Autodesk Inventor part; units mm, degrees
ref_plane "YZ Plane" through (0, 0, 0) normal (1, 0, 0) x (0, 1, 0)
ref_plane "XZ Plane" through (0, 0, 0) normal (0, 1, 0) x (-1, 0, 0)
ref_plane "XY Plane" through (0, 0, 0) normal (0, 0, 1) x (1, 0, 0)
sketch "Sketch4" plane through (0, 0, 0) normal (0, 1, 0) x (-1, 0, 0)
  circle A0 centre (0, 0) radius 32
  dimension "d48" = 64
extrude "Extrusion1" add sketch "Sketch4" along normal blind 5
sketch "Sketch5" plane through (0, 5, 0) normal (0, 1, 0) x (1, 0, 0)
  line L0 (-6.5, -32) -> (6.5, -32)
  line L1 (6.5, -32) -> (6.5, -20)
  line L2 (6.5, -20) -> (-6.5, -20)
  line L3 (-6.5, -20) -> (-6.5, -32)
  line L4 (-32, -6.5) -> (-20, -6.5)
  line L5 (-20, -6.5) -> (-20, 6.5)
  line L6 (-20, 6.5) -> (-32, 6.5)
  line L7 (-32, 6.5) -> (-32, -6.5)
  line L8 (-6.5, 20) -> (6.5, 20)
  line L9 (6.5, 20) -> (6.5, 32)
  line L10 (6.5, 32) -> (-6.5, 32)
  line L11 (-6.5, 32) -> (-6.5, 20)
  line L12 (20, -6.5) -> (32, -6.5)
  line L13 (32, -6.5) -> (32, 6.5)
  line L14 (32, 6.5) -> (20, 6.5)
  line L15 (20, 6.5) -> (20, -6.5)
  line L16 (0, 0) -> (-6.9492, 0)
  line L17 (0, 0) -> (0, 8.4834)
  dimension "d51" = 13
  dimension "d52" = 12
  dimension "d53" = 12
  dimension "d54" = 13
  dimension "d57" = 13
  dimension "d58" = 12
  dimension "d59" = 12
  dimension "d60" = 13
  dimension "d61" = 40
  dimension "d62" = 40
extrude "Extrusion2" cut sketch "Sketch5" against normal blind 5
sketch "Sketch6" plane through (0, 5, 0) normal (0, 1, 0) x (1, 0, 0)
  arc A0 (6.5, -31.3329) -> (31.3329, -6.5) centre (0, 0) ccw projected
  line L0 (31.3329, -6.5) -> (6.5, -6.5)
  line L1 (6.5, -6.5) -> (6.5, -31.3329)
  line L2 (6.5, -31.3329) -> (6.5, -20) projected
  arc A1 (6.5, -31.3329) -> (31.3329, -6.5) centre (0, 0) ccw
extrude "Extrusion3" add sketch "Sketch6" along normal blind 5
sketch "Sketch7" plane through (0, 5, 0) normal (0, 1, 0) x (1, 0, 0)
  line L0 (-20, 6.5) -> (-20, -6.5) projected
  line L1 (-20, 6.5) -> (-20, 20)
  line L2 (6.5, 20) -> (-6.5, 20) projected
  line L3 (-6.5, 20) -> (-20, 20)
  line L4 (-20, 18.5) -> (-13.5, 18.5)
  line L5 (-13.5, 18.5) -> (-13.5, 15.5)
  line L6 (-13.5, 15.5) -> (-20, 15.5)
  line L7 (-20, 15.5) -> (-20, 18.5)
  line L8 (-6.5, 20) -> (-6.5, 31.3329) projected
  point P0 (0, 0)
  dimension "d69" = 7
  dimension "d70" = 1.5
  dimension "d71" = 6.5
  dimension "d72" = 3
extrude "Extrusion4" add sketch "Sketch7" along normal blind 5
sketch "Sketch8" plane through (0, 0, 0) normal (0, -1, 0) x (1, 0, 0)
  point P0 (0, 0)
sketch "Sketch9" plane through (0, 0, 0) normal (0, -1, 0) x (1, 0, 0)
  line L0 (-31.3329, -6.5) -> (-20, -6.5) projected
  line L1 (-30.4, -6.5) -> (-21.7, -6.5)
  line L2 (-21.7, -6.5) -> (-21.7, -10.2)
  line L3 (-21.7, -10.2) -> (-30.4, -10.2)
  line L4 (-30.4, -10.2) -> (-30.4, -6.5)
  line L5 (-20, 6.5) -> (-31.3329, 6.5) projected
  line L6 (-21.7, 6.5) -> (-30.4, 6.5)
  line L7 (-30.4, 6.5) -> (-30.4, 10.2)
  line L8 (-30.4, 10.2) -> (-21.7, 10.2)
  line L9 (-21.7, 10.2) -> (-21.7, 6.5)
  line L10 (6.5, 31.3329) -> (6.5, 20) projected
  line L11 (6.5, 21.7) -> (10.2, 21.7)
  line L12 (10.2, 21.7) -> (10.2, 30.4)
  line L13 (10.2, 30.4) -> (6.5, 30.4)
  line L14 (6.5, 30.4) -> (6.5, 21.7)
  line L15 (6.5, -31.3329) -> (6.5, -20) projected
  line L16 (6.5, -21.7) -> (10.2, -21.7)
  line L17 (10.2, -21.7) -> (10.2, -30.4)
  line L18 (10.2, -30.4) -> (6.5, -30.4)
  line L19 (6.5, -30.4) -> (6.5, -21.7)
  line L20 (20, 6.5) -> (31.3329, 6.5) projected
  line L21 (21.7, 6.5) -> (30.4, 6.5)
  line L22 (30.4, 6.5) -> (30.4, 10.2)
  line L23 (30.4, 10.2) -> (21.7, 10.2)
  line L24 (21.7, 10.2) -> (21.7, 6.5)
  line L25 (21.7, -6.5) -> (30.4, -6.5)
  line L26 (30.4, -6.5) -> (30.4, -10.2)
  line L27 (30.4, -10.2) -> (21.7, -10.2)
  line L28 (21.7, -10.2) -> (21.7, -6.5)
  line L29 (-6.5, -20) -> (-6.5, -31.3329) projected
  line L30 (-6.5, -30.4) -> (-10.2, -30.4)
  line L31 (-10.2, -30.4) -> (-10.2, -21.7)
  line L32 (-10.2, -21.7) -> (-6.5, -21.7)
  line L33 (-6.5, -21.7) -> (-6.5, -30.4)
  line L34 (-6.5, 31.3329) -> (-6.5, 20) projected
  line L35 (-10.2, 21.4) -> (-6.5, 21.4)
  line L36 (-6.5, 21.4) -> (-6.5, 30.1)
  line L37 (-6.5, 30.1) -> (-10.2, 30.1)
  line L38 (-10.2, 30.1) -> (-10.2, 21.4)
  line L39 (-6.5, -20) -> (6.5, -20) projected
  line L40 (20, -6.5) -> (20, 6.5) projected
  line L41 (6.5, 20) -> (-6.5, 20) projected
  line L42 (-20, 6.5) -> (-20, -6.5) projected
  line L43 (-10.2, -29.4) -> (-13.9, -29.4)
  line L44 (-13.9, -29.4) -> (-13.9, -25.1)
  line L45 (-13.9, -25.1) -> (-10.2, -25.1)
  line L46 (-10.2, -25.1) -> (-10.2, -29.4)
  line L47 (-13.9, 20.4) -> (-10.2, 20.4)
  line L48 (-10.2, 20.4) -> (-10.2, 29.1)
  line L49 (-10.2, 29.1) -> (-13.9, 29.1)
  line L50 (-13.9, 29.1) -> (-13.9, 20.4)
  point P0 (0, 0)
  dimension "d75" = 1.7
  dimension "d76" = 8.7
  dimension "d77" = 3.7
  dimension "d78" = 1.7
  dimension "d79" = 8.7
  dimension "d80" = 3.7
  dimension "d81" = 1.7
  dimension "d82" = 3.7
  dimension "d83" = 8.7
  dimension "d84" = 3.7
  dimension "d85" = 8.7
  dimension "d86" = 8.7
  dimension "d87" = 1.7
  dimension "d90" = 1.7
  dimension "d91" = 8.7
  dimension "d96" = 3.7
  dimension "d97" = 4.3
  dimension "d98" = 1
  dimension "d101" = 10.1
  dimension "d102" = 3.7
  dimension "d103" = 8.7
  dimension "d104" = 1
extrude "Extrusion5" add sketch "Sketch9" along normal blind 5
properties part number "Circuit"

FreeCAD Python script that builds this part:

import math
import FreeCAD as App
import Part
import Sketcher

V = App.Vector
Q = App.Units.Quantity

doc = App.newDocument("Part")
body = doc.addObject("PartDesign::Body", "Body")

sketch1 = body.newObject("Sketcher::SketchObject", "Sketch")
sketch1.AttachmentSupport = (doc.getObject("XZ_Plane"), [""])
sketch1.MapMode = "FlatFace"
sketch1.addGeometry(Part.Circle(V(0, 0, 0), V(0, 0, 1), 32), False)
sketch1.addConstraint([
    Sketcher.Constraint("Coincident", 0, 3, -1, 1),
    Sketcher.Constraint("Diameter", 0, Q("64 mm")),
])
pad1 = body.newObject("PartDesign::Pad", "Pad")
pad1.Profile = sketch1
pad1.Length = 5
pad1.Reversed = True

sketch2 = body.newObject("Sketcher::SketchObject", "Sketch001")
sketch2.AttachmentSupport = (doc.getObject("XZ_Plane"), [""])
sketch2.MapMode = "FlatFace"
sketch2.AttachmentOffset = App.Placement(V(0, 0, -5), App.Rotation())
sketch2.addGeometry([
    Part.LineSegment(V(-6, 20, 0), V(-6, 32, 0)),
    Part.LineSegment(V(-6, 32, 0), V(6, 32, 0)),
    Part.LineSegment(V(6, 32, 0), V(6, 20, 0)),
    Part.LineSegment(V(6, 20, 0), V(-6, 20, 0)),
    Part.LineSegment(V(-32, -6, 0), V(-32, 6, 0)),
    Part.LineSegment(V(-32, 6, 0), V(-20, 6, 0)),
    Part.LineSegment(V(-20, 6, 0), V(-20, -6, 0)),
    Part.LineSegment(V(-20, -6, 0), V(-32, -6, 0)),
    Part.LineSegment(V(-6, -32, 0), V(-6, -20, 0)),
    Part.LineSegment(V(-6, -20, 0), V(6, -20, 0)),
    Part.LineSegment(V(6, -20, 0), V(6, -32, 0)),
    Part.LineSegment(V(6, -32, 0), V(-6, -32, 0)),
    Part.LineSegment(V(20, -6, 0), V(20, 6, 0)),
    Part.LineSegment(V(20, 6, 0), V(32, 6, 0)),
    Part.LineSegment(V(32, 6, 0), V(32, -6, 0)),
    Part.LineSegment(V(32, -6, 0), V(20, -6, 0)),
], False)
sketch2.addConstraint([
    Sketcher.Constraint("Coincident", 0, 2, 1, 1),
    Sketcher.Constraint("Coincident", 1, 2, 2, 1),
    Sketcher.Constraint("Coincident", 2, 2, 3, 1),
    Sketcher.Constraint("Coincident", 3, 2, 0, 1),
    Sketcher.Constraint("Coincident", 4, 2, 5, 1),
    Sketcher.Constraint("Coincident", 5, 2, 6, 1),
    Sketcher.Constraint("Coincident", 6, 2, 7, 1),
    Sketcher.Constraint("Coincident", 7, 2, 4, 1),
    Sketcher.Constraint("Coincident", 8, 2, 9, 1),
    Sketcher.Constraint("Coincident", 9, 2, 10, 1),
    Sketcher.Constraint("Coincident", 10, 2, 11, 1),
    Sketcher.Constraint("Coincident", 11, 2, 8, 1),
    Sketcher.Constraint("Coincident", 12, 2, 13, 1),
    Sketcher.Constraint("Coincident", 13, 2, 14, 1),
    Sketcher.Constraint("Coincident", 14, 2, 15, 1),
    Sketcher.Constraint("Coincident", 15, 2, 12, 1),
    Sketcher.Constraint("Vertical", 0),
    Sketcher.Constraint("Horizontal", 1),
    Sketcher.Constraint("Vertical", 2),
    Sketcher.Constraint("Horizontal", 3),
    Sketcher.Constraint("Vertical", 4),
    Sketcher.Constraint("Horizontal", 5),
    Sketcher.Constraint("Vertical", 6),
    Sketcher.Constraint("Horizontal", 7),
    Sketcher.Constraint("Vertical", 8),
    Sketcher.Constraint("Horizontal", 9),
    Sketcher.Constraint("Vertical", 10),
    Sketcher.Constraint("Horizontal", 11),
    Sketcher.Constraint("Vertical", 12),
    Sketcher.Constraint("Horizontal", 13),
    Sketcher.Constraint("Vertical", 14),
    Sketcher.Constraint("Horizontal", 15),
    Sketcher.Constraint("Symmetric", 2, 2, 8, 2, -1, 1),
    Sketcher.Constraint("Symmetric", 0, 2, 10, 2, -1, 1),
    Sketcher.Constraint("Symmetric", 6, 2, 12, 2, -1, 1),
    Sketcher.Constraint("Symmetric", 4, 2, 14, 2, -1, 1),
    Sketcher.Constraint("Horizontal", 5, 2, 12, 2),
    Sketcher.Constraint("Vertical", 3, 2, 8, 2),
    Sketcher.Constraint("Equal", 15, 0),
    Sketcher.Constraint("Equal", 11, 4),
    Sketcher.Constraint("DistanceX", 1, 1, 1, 2, Q("13 mm")),
    Sketcher.Constraint("DistanceX", 5, 1, 5, 2, Q("12 mm")),
    Sketcher.Constraint("DistanceY", 8, 2, 3, 2, Q("40 mm")),
    Sketcher.Constraint("DistanceX", 4, 2, -1, 1, Q("32 mm")),
])
pocket1 = body.newObject("PartDesign::Pocket", "Pocket")
pocket1.Profile = sketch2
pocket1.Length = 5
pocket1.Reversed = True

sketch3 = body.newObject("Sketcher::SketchObject", "Sketch002")
sketch3.AttachmentSupport = (doc.getObject("XZ_Plane"), [""])
sketch3.MapMode = "FlatFace"
sketch3.AttachmentOffset = App.Placement(V(0, 0, -5), App.Rotation())
sketch3.addGeometry([
    Part.LineSegment(V(6, 6, 0), V(6, 31, 0)),
    Part.ArcOfCircle(Part.Circle(V(0, 0, 0), V(0, 0, 1), 32), math.radians(12), math.radians(78)),
    Part.LineSegment(V(31, 6, 0), V(6, 6, 0)),
], False)
sketch3.addConstraint([
    Sketcher.Constraint("Coincident", 0, 2, 1, 2),
    Sketcher.Constraint("Coincident", 1, 1, 2, 1),
    Sketcher.Constraint("Coincident", 2, 2, 0, 1),
    Sketcher.Constraint("Vertical", 0),
    Sketcher.Constraint("Horizontal", 2),
    Sketcher.Constraint("Coincident", 1, 3, -1, 1),
    Sketcher.Constraint("Equal", 2, 0),
    Sketcher.Constraint("Radius", 1, Q("32 mm")),
    Sketcher.Constraint("DistanceX", -1, 1, 0, 2, Q("6.5 mm")),
])
pad2 = body.newObject("PartDesign::Pad", "Pad001")
pad2.Profile = sketch3
pad2.Length = 5
pad2.Reversed = True

sketch4 = body.newObject("Sketcher::SketchObject", "Sketch003")
sketch4.AttachmentSupport = (doc.getObject("XZ_Plane"), [""])
sketch4.MapMode = "FlatFace"
sketch4.AttachmentOffset = App.Placement(V(0, 0, -5), App.Rotation())
sketch4.addGeometry([
    Part.LineSegment(V(-20, -18.5, 0), V(-20, -15.5, 0)),
    Part.LineSegment(V(-20, -15.5, 0), V(-13.5, -15.5, 0)),
    Part.LineSegment(V(-13.5, -15.5, 0), V(-13.5, -18.5, 0)),
    Part.LineSegment(V(-13.5, -18.5, 0), V(-20, -18.5, 0)),
], False)
sketch4.addConstraint([
    Sketcher.Constraint("Coincident", 0, 2, 1, 1),
    Sketcher.Constraint("Coincident", 1, 2, 2, 1),
    Sketcher.Constraint("Coincident", 2, 2, 3, 1),
    Sketcher.Constraint("Coincident", 3, 2, 0, 1),
    Sketcher.Constraint("Vertical", 0),
    Sketcher.Constraint("Horizontal", 1),
    Sketcher.Constraint("Vertical", 2),
    Sketcher.Constraint("Horizontal", 3),
    Sketcher.Constraint("DistanceY", 0, 1, 0, 2, Q("3 mm")),
    Sketcher.Constraint("DistanceX", 1, 1, 1, 2, Q("6.5 mm")),
    Sketcher.Constraint("DistanceX", 0, 2, -1, 1, Q("20 mm")),
    Sketcher.Constraint("DistanceY", 0, 2, -1, 1, Q("15.5 mm")),
])
pad3 = body.newObject("PartDesign::Pad", "Pad002")
pad3.Profile = sketch4
pad3.Length = 5
pad3.Reversed = True

sketch5 = body.newObject("Sketcher::SketchObject", "Sketch004")
sketch5.AttachmentSupport = (doc.getObject("XZ_Plane"), [""])
sketch5.MapMode = "FlatFace"
sketch5.addGeometry([
    Part.LineSegment(V(-30.4, 6.5, 0), V(-21.7, 6.5, 0)),
    Part.LineSegment(V(-21.7, 6.5, 0), V(-21.7, 10.2, 0)),
    Part.LineSegment(V(-21.7, 10.2, 0), V(-30.4, 10.2, 0)),
    Part.LineSegment(V(-30.4, 10.2, 0), V(-30.4, 6.5, 0)),
    Part.LineSegment(V(-21.7, -6.5, 0), V(-30.4, -6.5, 0)),
    Part.LineSegment(V(-30.4, -6.5, 0), V(-30.4, -10.2, 0)),
    Part.LineSegment(V(-30.4, -10.2, 0), V(-21.7, -10.2, 0)),
    Part.LineSegment(V(-21.7, -10.2, 0), V(-21.7, -6.5, 0)),
    Part.LineSegment(V(10.2, 30.4, 0), V(6.5, 30.4, 0)),
    Part.LineSegment(V(6.5, 30.4, 0), V(6.5, 21.7, 0)),
    Part.LineSegment(V(6.5, 21.7, 0), V(10.2, 21.7, 0)),
    Part.LineSegment(V(10.2, 21.7, 0), V(10.2, 30.4, 0)),
    Part.LineSegment(V(-10.2, 21.4, 0), V(-6.5, 21.4, 0)),
    Part.LineSegment(V(-6.5, 21.4, 0), V(-6.5, 30.1, 0)),
    Part.LineSegment(V(-6.5, 30.1, 0), V(-10.2, 30.1, 0)),
    Part.LineSegment(V(-10.2, 30.1, 0), V(-10.2, 29.1, 0)),
    Part.LineSegment(V(-10.2, 29.1, 0), V(-13.9, 29.1, 0)),
    Part.LineSegment(V(-13.9, 29.1, 0), V(-13.9, 20.4, 0)),
    Part.LineSegment(V(-13.9, 20.4, 0), V(-10.2, 20.4, 0)),
    Part.LineSegment(V(-10.2, 20.4, 0), V(-10.2, 21.4, 0)),
    Part.LineSegment(V(-6.5, -30.4, 0), V(-6.5, -21.7, 0)),
    Part.LineSegment(V(-6.5, -21.7, 0), V(-10.2, -21.7, 0)),
    Part.LineSegment(V(-10.2, -21.7, 0), V(-10.2, -25.1, 0)),
    Part.LineSegment(V(-10.2, -25.1, 0), V(-13.9, -25.1, 0)),
    Part.LineSegment(V(-13.9, -25.1, 0), V(-13.9, -29.4, 0)),
    Part.LineSegment(V(-13.9, -29.4, 0), V(-10.2, -29.4, 0)),
    Part.LineSegment(V(-10.2, -29.4, 0), V(-10.2, -30.4, 0)),
    Part.LineSegment(V(-10.2, -30.4, 0), V(-6.5, -30.4, 0)),
    Part.LineSegment(V(6.5, -21.7, 0), V(6.5, -30.4, 0)),
    Part.LineSegment(V(6.5, -30.4, 0), V(10.2, -30.4, 0)),
    Part.LineSegment(V(10.2, -30.4, 0), V(10.2, -21.7, 0)),
    Part.LineSegment(V(10.2, -21.7, 0), V(6.5, -21.7, 0)),
    Part.LineSegment(V(21.7, 10.2, 0), V(21.7, 6.5, 0)),
    Part.LineSegment(V(21.7, 6.5, 0), V(30.4, 6.5, 0)),
    Part.LineSegment(V(30.4, 6.5, 0), V(30.4, 10.2, 0)),
    Part.LineSegment(V(30.4, 10.2, 0), V(21.7, 10.2, 0)),
    Part.LineSegment(V(30.4, -6.5, 0), V(21.7, -6.5, 0)),
    Part.LineSegment(V(21.7, -6.5, 0), V(21.7, -10.2, 0)),
    Part.LineSegment(V(21.7, -10.2, 0), V(30.4, -10.2, 0)),
    Part.LineSegment(V(30.4, -10.2, 0), V(30.4, -6.5, 0)),
], False)
sketch5.addConstraint([
    Sketcher.Constraint("Coincident", 0, 2, 1, 1),
    Sketcher.Constraint("Coincident", 1, 2, 2, 1),
    Sketcher.Constraint("Coincident", 2, 2, 3, 1),
    Sketcher.Constraint("Coincident", 3, 2, 0, 1),
    Sketcher.Constraint("Coincident", 4, 2, 5, 1),
    Sketcher.Constraint("Coincident", 5, 2, 6, 1),
    Sketcher.Constraint("Coincident", 6, 2, 7, 1),
    Sketcher.Constraint("Coincident", 7, 2, 4, 1),
    Sketcher.Constraint("Coincident", 8, 2, 9, 1),
    Sketcher.Constraint("Coincident", 9, 2, 10, 1),
    Sketcher.Constraint("Coincident", 10, 2, 11, 1),
    Sketcher.Constraint("Coincident", 11, 2, 8, 1),
    Sketcher.Constraint("Coincident", 12, 2, 13, 1),
    Sketcher.Constraint("Coincident", 13, 2, 14, 1),
    Sketcher.Constraint("Coincident", 14, 2, 15, 1),
    Sketcher.Constraint("Coincident", 15, 2, 16, 1),
    Sketcher.Constraint("Coincident", 16, 2, 17, 1),
    Sketcher.Constraint("Coincident", 17, 2, 18, 1),
    Sketcher.Constraint("Coincident", 18, 2, 19, 1),
    Sketcher.Constraint("Coincident", 19, 2, 12, 1),
    Sketcher.Constraint("Coincident", 20, 2, 21, 1),
    Sketcher.Constraint("Coincident", 21, 2, 22, 1),
    Sketcher.Constraint("Coincident", 22, 2, 23, 1),
    Sketcher.Constraint("Coincident", 23, 2, 24, 1),
    Sketcher.Constraint("Coincident", 24, 2, 25, 1),
    Sketcher.Constraint("Coincident", 25, 2, 26, 1),
    Sketcher.Constraint("Coincident", 26, 2, 27, 1),
    Sketcher.Constraint("Coincident", 27, 2, 20, 1),
    Sketcher.Constraint("Coincident", 28, 2, 29, 1),
    Sketcher.Constraint("Coincident", 29, 2, 30, 1),
    Sketcher.Constraint("Coincident", 30, 2, 31, 1),
    Sketcher.Constraint("Coincident", 31, 2, 28, 1),
    Sketcher.Constraint("Coincident", 32, 2, 33, 1),
    Sketcher.Constraint("Coincident", 33, 2, 34, 1),
    Sketcher.Constraint("Coincident", 34, 2, 35, 1),
    Sketcher.Constraint("Coincident", 35, 2, 32, 1),
    Sketcher.Constraint("Coincident", 36, 2, 37, 1),
    Sketcher.Constraint("Coincident", 37, 2, 38, 1),
    Sketcher.Constraint("Coincident", 38, 2, 39, 1),
    Sketcher.Constraint("Coincident", 39, 2, 36, 1),
    Sketcher.Constraint("Horizontal", 0),
    Sketcher.Constraint("Vertical", 1),
    Sketcher.Constraint("Horizontal", 2),
    Sketcher.Constraint("Vertical", 3),
    Sketcher.Constraint("Horizontal", 4),
    Sketcher.Constraint("Vertical", 5),
    Sketcher.Constraint("Horizontal", 6),
    Sketcher.Constraint("Vertical", 7),
    Sketcher.Constraint("Horizontal", 8),
    Sketcher.Constraint("Vertical", 9),
    Sketcher.Constraint("Horizontal", 10),
    Sketcher.Constraint("Vertical", 11),
    Sketcher.Constraint("Horizontal", 12),
    Sketcher.Constraint("Vertical", 13),
    Sketcher.Constraint("Horizontal", 14),
    Sketcher.Constraint("Vertical", 15),
    Sketcher.Constraint("Horizontal", 16),
    Sketcher.Constraint("Vertical", 17),
    Sketcher.Constraint("Horizontal", 18),
    Sketcher.Constraint("Vertical", 19),
    Sketcher.Constraint("Vertical", 20),
    Sketcher.Constraint("Horizontal", 21),
    Sketcher.Constraint("Vertical", 22),
    Sketcher.Constraint("Horizontal", 23),
    Sketcher.Constraint("Vertical", 24),
    Sketcher.Constraint("Horizontal", 25),
    Sketcher.Constraint("Vertical", 26),
    Sketcher.Constraint("Horizontal", 27),
    Sketcher.Constraint("Vertical", 28),
    Sketcher.Constraint("Horizontal", 29),
    Sketcher.Constraint("Vertical", 30),
    Sketcher.Constraint("Horizontal", 31),
    Sketcher.Constraint("Vertical", 32),
    Sketcher.Constraint("Horizontal", 33),
    Sketcher.Constraint("Vertical", 34),
    Sketcher.Constraint("Horizontal", 35),
    Sketcher.Constraint("Horizontal", 36),
    Sketcher.Constraint("Vertical", 37),
    Sketcher.Constraint("Horizontal", 38),
    Sketcher.Constraint("Vertical", 39),
    Sketcher.Constraint("Symmetric", 9, 2, 20, 2, -1, 1),
    Sketcher.Constraint("Symmetric", 11, 2, 26, 2, -1, 1),
    Sketcher.Constraint("Symmetric", 7, 2, 32, 2, -1, 1),
    Sketcher.Constraint("Symmetric", 5, 2, 34, 2, -1, 1),
    Sketcher.Constraint("Symmetric", 0, 2, 36, 2, -1, 1),
    Sketcher.Constraint("Symmetric", 2, 2, 38, 2, -1, 1),
    Sketcher.Constraint("Symmetric", 27, 2, 28, 2, -2),
    Sketcher.Constraint("Symmetric", 21, 2, 30, 2, -2),
    Sketcher.Constraint("Symmetric", 0, 2, 32, 2, -2),
    Sketcher.Constraint("Symmetric", 2, 2, 34, 2, -2),
    Sketcher.Constraint("Vertical", 15, 2, 18, 2),
    Sketcher.Constraint("Vertical", 13, 2, 20, 2),
    Sketcher.Constraint("Vertical", 19, 2, 21, 2),
    Sketcher.Constraint("Vertical", 17, 2, 23, 2),
    Sketcher.Constraint("Vertical", 22, 2, 25, 2),
    Sketcher.Constraint("Equal", 14, 16),
    Sketcher.Constraint("Equal", 31, 1),
    Sketcher.Constraint("Equal", 38, 9),
    Sketcher.Constraint("Equal", 11, 13),
    Sketcher.Constraint("Equal", 13, 17),
    Sketcher.Constraint("Equal", 19, 26),
    Sketcher.Constraint("DistanceY", 15, 2, 15, 1, Q("1 mm")),
    Sketcher.Constraint("DistanceX", 0, 1, 0, 2, Q("8.7 mm")),
    Sketcher.Constraint("DistanceX", 8, 2, 8, 1, Q("3.7 mm")),
    Sketcher.Constraint("DistanceY", 24, 2, 24, 1, Q("4.3 mm")),
    Sketcher.Constraint("DistanceY", 4, 2, 3, 2, Q("13 mm")),
    Sketcher.Constraint("DistanceX", 12, 2, 9, 2, Q("13 mm")),
    Sketcher.Constraint("DistanceY", 12, 2, 8, 2, Q("9 mm")),
    Sketcher.Constraint("DistanceX", 0, 2, -1, 1, Q("21.7 mm")),
    Sketcher.Constraint("DistanceY", -1, 1, 8, 2, Q("30.4 mm")),
])
pad4 = body.newObject("PartDesign::Pad", "Pad003")
pad4.Profile = sketch5
pad4.Length = 5

doc.recompute()
